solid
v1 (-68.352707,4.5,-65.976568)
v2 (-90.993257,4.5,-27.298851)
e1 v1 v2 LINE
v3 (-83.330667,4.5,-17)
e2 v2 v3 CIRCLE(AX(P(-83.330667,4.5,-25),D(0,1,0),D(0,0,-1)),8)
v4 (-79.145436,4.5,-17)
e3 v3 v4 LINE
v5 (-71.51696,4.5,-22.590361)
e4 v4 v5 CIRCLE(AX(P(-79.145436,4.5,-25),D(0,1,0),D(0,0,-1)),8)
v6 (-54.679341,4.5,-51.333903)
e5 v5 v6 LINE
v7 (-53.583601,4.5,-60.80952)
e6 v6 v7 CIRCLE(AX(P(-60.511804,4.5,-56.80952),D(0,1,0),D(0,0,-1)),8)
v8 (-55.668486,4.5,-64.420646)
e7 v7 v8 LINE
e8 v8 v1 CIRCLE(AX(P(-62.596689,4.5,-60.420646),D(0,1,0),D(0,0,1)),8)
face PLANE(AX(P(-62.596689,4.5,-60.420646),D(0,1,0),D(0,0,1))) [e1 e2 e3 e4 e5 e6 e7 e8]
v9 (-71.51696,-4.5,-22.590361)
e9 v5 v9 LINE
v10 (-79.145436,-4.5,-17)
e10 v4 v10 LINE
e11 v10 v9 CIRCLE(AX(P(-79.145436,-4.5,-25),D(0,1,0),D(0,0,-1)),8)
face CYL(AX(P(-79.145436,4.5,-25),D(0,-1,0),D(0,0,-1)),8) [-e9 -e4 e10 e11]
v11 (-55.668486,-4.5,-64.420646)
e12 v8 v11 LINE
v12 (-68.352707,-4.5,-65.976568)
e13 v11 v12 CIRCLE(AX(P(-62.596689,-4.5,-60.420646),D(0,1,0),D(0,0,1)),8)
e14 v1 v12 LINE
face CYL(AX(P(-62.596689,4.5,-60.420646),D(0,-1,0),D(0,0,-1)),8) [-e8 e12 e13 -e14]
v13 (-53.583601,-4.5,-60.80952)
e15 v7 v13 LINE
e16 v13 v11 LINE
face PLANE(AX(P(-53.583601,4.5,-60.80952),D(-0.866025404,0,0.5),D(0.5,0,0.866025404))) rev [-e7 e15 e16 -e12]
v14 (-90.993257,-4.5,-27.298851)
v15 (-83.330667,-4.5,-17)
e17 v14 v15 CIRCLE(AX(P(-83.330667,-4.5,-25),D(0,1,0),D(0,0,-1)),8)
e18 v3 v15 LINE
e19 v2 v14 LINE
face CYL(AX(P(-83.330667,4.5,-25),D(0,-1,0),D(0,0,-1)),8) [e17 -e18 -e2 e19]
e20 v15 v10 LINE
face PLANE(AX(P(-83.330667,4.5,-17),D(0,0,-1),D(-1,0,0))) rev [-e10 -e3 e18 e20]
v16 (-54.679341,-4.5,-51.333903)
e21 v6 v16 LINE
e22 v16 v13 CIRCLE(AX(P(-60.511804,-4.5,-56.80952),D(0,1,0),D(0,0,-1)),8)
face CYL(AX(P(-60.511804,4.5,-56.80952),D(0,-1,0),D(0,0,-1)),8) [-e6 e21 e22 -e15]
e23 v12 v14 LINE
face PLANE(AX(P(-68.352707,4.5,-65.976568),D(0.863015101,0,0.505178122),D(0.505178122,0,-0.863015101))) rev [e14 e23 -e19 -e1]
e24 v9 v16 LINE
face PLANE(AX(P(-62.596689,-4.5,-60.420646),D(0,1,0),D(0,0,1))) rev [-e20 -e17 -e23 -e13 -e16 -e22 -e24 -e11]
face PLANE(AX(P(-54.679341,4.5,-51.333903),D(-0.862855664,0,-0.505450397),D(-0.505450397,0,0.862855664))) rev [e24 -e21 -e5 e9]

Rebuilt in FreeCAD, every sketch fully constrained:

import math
import FreeCAD as App
import Part
import Sketcher
from FreeCAD import Vector
Q = App.Units.Quantity

doc = App.newDocument("Part")
body = doc.addObject("PartDesign::Body", "Body")

sketch1 = body.newObject("Sketcher::SketchObject", "Sketch")
sketch1.AttachmentSupport = (doc.getObject("XZ_Plane"), [""])
sketch1.MapMode = "FlatFace"
sketch1.addGeometry([
    Part.LineSegment(Vector(-53.6, -60.8, 0), Vector(-55.7, -64.4, 0)),
    Part.ArcOfCircle(Part.Circle(Vector(-62.6, -60.4, 0), Vector(0, 0, 1), 8), math.radians(-136), math.radians(-30)),
    Part.LineSegment(Vector(-68.4, -66, 0), Vector(-91, -27.3, 0)),
    Part.ArcOfCircle(Part.Circle(Vector(-83.3, -25, 0), Vector(0, 0, 1), 8), math.radians(90), math.radians(197)),
    Part.LineSegment(Vector(-83.3, -17, 0), Vector(-79.1, -17, 0)),
    Part.ArcOfCircle(Part.Circle(Vector(-79.1, -25, 0), Vector(0, 0, 1), 8), math.radians(18), math.radians(90)),
    Part.LineSegment(Vector(-71.5, -22.6, 0), Vector(-54.7, -51.3, 0)),
    Part.ArcOfCircle(Part.Circle(Vector(-60.5, -56.8, 0), Vector(0, 0, 1), 8), math.radians(-30), math.radians(43)),
], False)
sketch1.addConstraint([
    Sketcher.Constraint("Tangent", 0, 2, 1, 2),
    Sketcher.Constraint("Coincident", 1, 1, 2, 1),
    Sketcher.Constraint("Coincident", 2, 2, 3, 2),
    Sketcher.Constraint("Tangent", 3, 1, 4, 1),
    Sketcher.Constraint("Tangent", 4, 2, 5, 2),
    Sketcher.Constraint("Coincident", 5, 1, 6, 1),
    Sketcher.Constraint("Coincident", 6, 2, 7, 2),
    Sketcher.Constraint("Tangent", 7, 1, 0, 1),
    Sketcher.Constraint("Horizontal", 4),
    Sketcher.Constraint("Equal", 1, 3),
    Sketcher.Constraint("Equal", 3, 5),
    Sketcher.Constraint("Equal", 5, 7),
    Sketcher.Constraint("Radius", 1, Q("8 mm")),
    Sketcher.Constraint("Angle", 0, Q("-120 deg")),
    Sketcher.Constraint("DistanceY", 3, 3, -1, 1, Q("25 mm")),
    Sketcher.Constraint("DistanceX", 4, 1, 4, 2, Q("4.185231 mm")),
    Sketcher.Constraint("DistanceX", 7, 1, -1, 1, Q("53.583601 mm")),
    Sketcher.Constraint("Distance", 0, Q("4.16977 mm")),
    Sketcher.Constraint("Distance", 6, Q("33.312109 mm")),
    Sketcher.Constraint("DistanceY", 7, 3, -1, 1, Q("56.80952 mm")),
    Sketcher.Constraint("DistanceY", 2, 2, -1, 1, Q("27.298851 mm")),
    Sketcher.Constraint("DistanceX", 5, 1, -1, 1, Q("71.51696 mm")),
    Sketcher.Constraint("DistanceY", 5, 1, -1, 1, Q("22.590361 mm")),
    Sketcher.Constraint("DistanceY", 1, 1, 1, 3, Q("5.555921 mm")),
])
pad1 = body.newObject("PartDesign::Pad", "Pad")
pad1.Profile = sketch1
pad1.Length = 9
pad1.Midplane = True

doc.recompute()
